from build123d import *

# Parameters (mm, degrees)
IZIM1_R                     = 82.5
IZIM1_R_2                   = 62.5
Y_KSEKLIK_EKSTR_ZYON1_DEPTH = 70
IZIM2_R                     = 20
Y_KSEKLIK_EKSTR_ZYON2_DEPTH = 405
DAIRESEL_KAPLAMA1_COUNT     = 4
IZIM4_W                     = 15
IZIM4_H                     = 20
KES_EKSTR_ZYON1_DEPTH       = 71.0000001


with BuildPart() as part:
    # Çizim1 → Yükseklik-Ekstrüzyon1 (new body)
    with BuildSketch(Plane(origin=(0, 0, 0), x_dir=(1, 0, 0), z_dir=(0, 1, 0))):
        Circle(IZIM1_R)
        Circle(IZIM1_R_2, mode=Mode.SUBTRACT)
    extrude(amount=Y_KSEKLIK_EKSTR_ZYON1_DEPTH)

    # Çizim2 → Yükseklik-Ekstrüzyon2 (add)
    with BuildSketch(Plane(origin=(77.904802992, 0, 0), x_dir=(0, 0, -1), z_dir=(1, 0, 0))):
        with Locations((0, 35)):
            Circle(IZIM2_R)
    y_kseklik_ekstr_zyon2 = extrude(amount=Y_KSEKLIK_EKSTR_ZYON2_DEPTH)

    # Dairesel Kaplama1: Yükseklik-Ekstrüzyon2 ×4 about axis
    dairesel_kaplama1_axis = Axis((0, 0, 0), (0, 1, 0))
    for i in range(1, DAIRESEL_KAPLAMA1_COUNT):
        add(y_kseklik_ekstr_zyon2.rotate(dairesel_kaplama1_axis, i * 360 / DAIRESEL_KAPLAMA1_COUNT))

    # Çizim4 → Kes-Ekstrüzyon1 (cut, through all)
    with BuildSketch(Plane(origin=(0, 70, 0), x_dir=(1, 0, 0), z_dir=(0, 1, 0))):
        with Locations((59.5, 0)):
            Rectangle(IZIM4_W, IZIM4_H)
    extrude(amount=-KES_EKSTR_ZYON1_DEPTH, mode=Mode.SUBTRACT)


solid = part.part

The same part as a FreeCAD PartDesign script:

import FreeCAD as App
import Part
import Sketcher

doc = App.newDocument("Part")
body = doc.addObject("PartDesign::Body", "Body")

sketch1 = body.newObject("Sketcher::SketchObject", "Sketch")
sketch1.AttachmentSupport = (doc.getObject("XZ_Plane"), [""])
sketch1.MapMode = "FlatFace"
sketch1.addGeometry(Part.Circle(App.Vector(0, 0, 0), App.Vector(0, 0, 1), 82), False)
sketch1.addGeometry(Part.Circle(App.Vector(0, 0, 0), App.Vector(0, 0, 1), 62), False)
sketch1.addConstraint(Sketcher.Constraint("Coincident", 0, 3, -1, 1))
sketch1.addConstraint(Sketcher.Constraint("Coincident", 1, 3, -1, 1))
sketch1.addConstraint(Sketcher.Constraint("Diameter", 0, 165.0))
sketch1.addConstraint(Sketcher.Constraint("Diameter", 1, 125.0))
pad1 = body.newObject("PartDesign::Pad", "Pad")
pad1.Profile = sketch1
pad1.Length = 70
pad1.Reversed = True

sketch2 = body.newObject("Sketcher::SketchObject", "Sketch001")
sketch2.AttachmentSupport = (doc.getObject("YZ_Plane"), [""])
sketch2.MapMode = "FlatFace"
sketch2.AttachmentOffset = App.Placement(App.Vector(0, 0, 77.904803), App.Rotation())
sketch2.addGeometry(Part.Circle(App.Vector(35, 0, 0), App.Vector(0, 0, 1), 20), False)
sketch2.addConstraint(Sketcher.Constraint("PointOnObject", 0, 3, -1))
sketch2.addConstraint(Sketcher.Constraint("Diameter", 0, 40.0))
sketch2.addConstraint(Sketcher.Constraint("DistanceX", -1, 1, 0, 3, 35.0))
pad2 = body.newObject("PartDesign::Pad", "Pad001")
pad2.Profile = sketch2
pad2.Length = 405
doc.recompute()

polarpattern = body.newObject("PartDesign::PolarPattern", "PolarPattern")
polarpattern.Originals = [pad2]
polarpattern.Axis = (doc.getObject("Y_Axis"), [""])
polarpattern.Angle = 360
polarpattern.Occurrences = 4
body.Tip = polarpattern

sketch3 = body.newObject("Sketcher::SketchObject", "Sketch002")
sketch3.AttachmentSupport = (doc.getObject("XZ_Plane"), [""])
sketch3.MapMode = "FlatFace"
sketch3.AttachmentOffset = App.Placement(App.Vector(0, 0, -70), App.Rotation())
sketch3.addGeometry(Part.LineSegment(App.Vector(52, -10, 0), App.Vector(52, 10, 0)), False)
sketch3.addGeometry(Part.LineSegment(App.Vector(52, 10, 0), App.Vector(67, 10, 0)), False)
sketch3.addGeometry(Part.LineSegment(App.Vector(67, 10, 0), App.Vector(67, -10, 0)), False)
sketch3.addGeometry(Part.LineSegment(App.Vector(67, -10, 0), App.Vector(52, -10, 0)), False)
sketch3.addConstraint(Sketcher.Constraint("Coincident", 0, 2, 1, 1))
sketch3.addConstraint(Sketcher.Constraint("Coincident", 1, 2, 2, 1))
sketch3.addConstraint(Sketcher.Constraint("Coincident", 2, 2, 3, 1))
sketch3.addConstraint(Sketcher.Constraint("Coincident", 3, 2, 0, 1))
sketch3.addConstraint(Sketcher.Constraint("Vertical", 0))
sketch3.addConstraint(Sketcher.Constraint("Horizontal", 1))
sketch3.addConstraint(Sketcher.Constraint("Vertical", 2))
sketch3.addConstraint(Sketcher.Constraint("Horizontal", 3))
sketch3.addConstraint(Sketcher.Constraint("DistanceX", 1, 1, 1, 2, 15.0))
sketch3.addConstraint(Sketcher.Constraint("DistanceY", 0, 1, 0, 2, 20.0))
sketch3.addConstraint(Sketcher.Constraint("DistanceX", -1, 1, 0, 2, 52.0))
sketch3.addConstraint(Sketcher.Constraint("DistanceY", -1, 1, 0, 2, 10.0))
pocket1 = body.newObject("PartDesign::Pocket", "Pocket")
pocket1.Profile = sketch3
pocket1.Type = "ThroughAll"
pocket1.Reversed = True

doc.recompute()
